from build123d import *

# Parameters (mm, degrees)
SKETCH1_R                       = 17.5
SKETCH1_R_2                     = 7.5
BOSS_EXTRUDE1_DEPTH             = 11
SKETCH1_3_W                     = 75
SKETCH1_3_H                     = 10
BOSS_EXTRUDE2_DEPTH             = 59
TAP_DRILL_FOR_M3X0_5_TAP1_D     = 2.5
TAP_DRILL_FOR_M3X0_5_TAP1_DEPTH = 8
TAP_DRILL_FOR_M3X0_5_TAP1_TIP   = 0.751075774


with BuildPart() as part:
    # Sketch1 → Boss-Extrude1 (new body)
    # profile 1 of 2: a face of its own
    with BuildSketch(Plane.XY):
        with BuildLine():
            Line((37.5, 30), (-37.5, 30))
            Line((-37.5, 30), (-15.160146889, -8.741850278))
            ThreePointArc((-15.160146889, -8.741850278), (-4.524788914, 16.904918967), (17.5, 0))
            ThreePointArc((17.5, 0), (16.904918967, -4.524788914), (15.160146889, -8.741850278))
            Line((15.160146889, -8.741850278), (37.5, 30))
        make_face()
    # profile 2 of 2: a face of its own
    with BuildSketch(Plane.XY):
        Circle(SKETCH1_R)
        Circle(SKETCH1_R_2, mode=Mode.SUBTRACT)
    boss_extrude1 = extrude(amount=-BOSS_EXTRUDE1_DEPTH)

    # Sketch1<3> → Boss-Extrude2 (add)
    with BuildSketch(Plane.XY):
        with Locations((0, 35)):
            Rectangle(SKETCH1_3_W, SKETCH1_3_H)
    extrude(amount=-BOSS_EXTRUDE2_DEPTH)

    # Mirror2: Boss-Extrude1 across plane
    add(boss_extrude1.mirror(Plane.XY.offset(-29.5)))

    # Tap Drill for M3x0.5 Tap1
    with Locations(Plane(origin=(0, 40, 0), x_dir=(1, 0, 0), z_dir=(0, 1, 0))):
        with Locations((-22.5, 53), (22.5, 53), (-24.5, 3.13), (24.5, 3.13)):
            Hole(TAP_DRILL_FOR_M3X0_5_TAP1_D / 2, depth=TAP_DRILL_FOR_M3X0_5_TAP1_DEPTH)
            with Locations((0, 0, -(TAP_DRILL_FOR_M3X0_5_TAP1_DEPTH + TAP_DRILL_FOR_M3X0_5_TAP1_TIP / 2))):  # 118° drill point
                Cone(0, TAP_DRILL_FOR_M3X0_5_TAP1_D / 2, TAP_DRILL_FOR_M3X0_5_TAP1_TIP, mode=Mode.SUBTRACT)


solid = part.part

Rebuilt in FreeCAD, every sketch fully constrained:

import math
import FreeCAD as App
import Part
import Sketcher

V = App.Vector
Q = App.Units.Quantity

doc = App.newDocument("Part")
body = doc.addObject("PartDesign::Body", "Body")

# Sketch on XY plane
sketch1 = body.newObject("Sketcher::SketchObject", "Sketch")
sketch1.AttachmentSupport = (doc.getObject("XY_Plane"), [""])
sketch1.MapMode = "FlatFace"
sketch1.addGeometry([
    Part.LineSegment(V(38, 30, 0), V(-38, 30, 0)),  # 0
    Part.LineSegment(V(-38, 30, 0), V(-15, -9, 0)),  # 1
    Part.ArcOfCircle(Part.Circle(V(0, 0, 0), V(0, 0, 1), 18), math.radians(-150), math.radians(-30)),  # 2
    Part.LineSegment(V(15, -9, 0), V(38, 30, 0)),  # 3
    Part.Circle(V(0, 0, 0), V(0, 0, 1), 8),  # 4
], False)
sketch1.addConstraint([
    Sketcher.Constraint("Coincident", 0, 2, 1, 1),
    Sketcher.Constraint("Tangent", 1, 2, 2, 1),
    Sketcher.Constraint("Tangent", 2, 2, 3, 1),
    Sketcher.Constraint("Coincident", 3, 2, 0, 1),
    Sketcher.Constraint("Horizontal", 0),
    Sketcher.Constraint("Coincident", 2, 3, -1, 1),
    Sketcher.Constraint("Coincident", 4, 3, -1, 1),
    Sketcher.Constraint("Horizontal", 1, 2, 2, 2),
    Sketcher.Constraint("Diameter", 4, Q("15 mm")),
    Sketcher.Constraint("Radius", 2, Q("17.5 mm")),
    Sketcher.Constraint("DistanceX", 0, 2, 0, 1, Q("75 mm")),
    Sketcher.Constraint("DistanceY", -1, 1, 0, 2, Q("30 mm")),
])
pad1 = body.newObject("PartDesign::Pad", "Pad")
pad1.Profile = sketch1
pad1.Length = 11
pad1.Reversed = True

# Sketch on XY plane
sketch2 = body.newObject("Sketcher::SketchObject", "Sketch001")
sketch2.AttachmentSupport = (doc.getObject("XY_Plane"), [""])
sketch2.MapMode = "FlatFace"
sketch2.addGeometry([
    Part.LineSegment(V(-38, 40, 0), V(-38, 30, 0)),
    Part.LineSegment(V(-38, 30, 0), V(38, 30, 0)),
    Part.LineSegment(V(38, 30, 0), V(38, 40, 0)),
    Part.LineSegment(V(38, 40, 0), V(-38, 40, 0)),
], False)
sketch2.addConstraint([
    Sketcher.Constraint("Coincident", 0, 2, 1, 1),
    Sketcher.Constraint("Coincident", 1, 2, 2, 1),
    Sketcher.Constraint("Coincident", 2, 2, 3, 1),
    Sketcher.Constraint("Coincident", 3, 2, 0, 1),
    Sketcher.Constraint("Vertical", 0),
    Sketcher.Constraint("Horizontal", 1),
    Sketcher.Constraint("Vertical", 2),
    Sketcher.Constraint("Horizontal", 3),
    Sketcher.Constraint("DistanceX", 1, 1, 1, 2, Q("75 mm")),
    Sketcher.Constraint("DistanceY", 0, 2, 0, 1, Q("10 mm")),
    Sketcher.Constraint("DistanceY", -1, 1, 0, 2, Q("30 mm")),
    Sketcher.Constraint("DistanceX", 0, 2, -1, 1, Q("37.5 mm")),
])
pad2 = body.newObject("PartDesign::Pad", "Pad001")
pad2.Profile = sketch2
pad2.Length = 59
pad2.Reversed = True
doc.recompute()

datumplane = body.newObject("PartDesign::Plane", "DatumPlane")
datumplane.AttachmentSupport = (doc.getObject("XY_Plane"), [""])
datumplane.MapMode = "FlatFace"
datumplane.AttachmentOffset = App.Placement(V(0, 0, -29.5), App.Rotation())
mirrored = body.newObject("PartDesign::Mirrored", "Mirrored")
mirrored.Originals = [pad1]
mirrored.MirrorPlane = (datumplane, [""])
body.Tip = mirrored

# Sketch on XZ plane
sketch3 = body.newObject("Sketcher::SketchObject", "Sketch002")
sketch3.AttachmentSupport = (doc.getObject("XZ_Plane"), [""])
sketch3.MapMode = "FlatFace"
sketch3.AttachmentOffset = App.Placement(V(0, 0, -40), App.Rotation())
sketch3.addGeometry([
    Part.Circle(V(-22.5, -53, 0), V(0, 0, 1), 1.2),
    Part.Circle(V(22.5, -53, 0), V(0, 0, 1), 1.2),
    Part.Circle(V(-24.5, -3.1, 0), V(0, 0, 1), 1.2),
    Part.Circle(V(24.5, -3.1, 0), V(0, 0, 1), 1.2),
], False)
sketch3.addConstraint([
    Sketcher.Constraint("Equal", 0, 1),
    Sketcher.Constraint("Equal", 1, 2),
    Sketcher.Constraint("Equal", 2, 3),
    Sketcher.Constraint("Symmetric", 0, 3, 1, 3, -2),
    Sketcher.Constraint("Symmetric", 2, 3, 3, 3, -2),
    Sketcher.Constraint("Diameter", 0, Q("2.5 mm")),
    Sketcher.Constraint("DistanceY", 0, 3, -1, 1, Q("53 mm")),
    Sketcher.Constraint("DistanceX", 0, 3, 1, 3, Q("45 mm")),
    Sketcher.Constraint("DistanceX", 2, 3, 0, 3, Q("2 mm")),
    Sketcher.Constraint("DistanceY", 2, 3, -1, 1, Q("3.13 mm")),
])
doc.recompute()
hole = body.newObject("PartDesign::Hole", "Hole")
hole.Profile = sketch3
hole.ThreadType = "None"
hole.Diameter = 2.5
hole.DepthType = "Dimension"
hole.Depth = 8
hole.DrillPoint = "Angled"
hole.DrillPointAngle = 118
hole.Reversed = True

doc.recompute()
